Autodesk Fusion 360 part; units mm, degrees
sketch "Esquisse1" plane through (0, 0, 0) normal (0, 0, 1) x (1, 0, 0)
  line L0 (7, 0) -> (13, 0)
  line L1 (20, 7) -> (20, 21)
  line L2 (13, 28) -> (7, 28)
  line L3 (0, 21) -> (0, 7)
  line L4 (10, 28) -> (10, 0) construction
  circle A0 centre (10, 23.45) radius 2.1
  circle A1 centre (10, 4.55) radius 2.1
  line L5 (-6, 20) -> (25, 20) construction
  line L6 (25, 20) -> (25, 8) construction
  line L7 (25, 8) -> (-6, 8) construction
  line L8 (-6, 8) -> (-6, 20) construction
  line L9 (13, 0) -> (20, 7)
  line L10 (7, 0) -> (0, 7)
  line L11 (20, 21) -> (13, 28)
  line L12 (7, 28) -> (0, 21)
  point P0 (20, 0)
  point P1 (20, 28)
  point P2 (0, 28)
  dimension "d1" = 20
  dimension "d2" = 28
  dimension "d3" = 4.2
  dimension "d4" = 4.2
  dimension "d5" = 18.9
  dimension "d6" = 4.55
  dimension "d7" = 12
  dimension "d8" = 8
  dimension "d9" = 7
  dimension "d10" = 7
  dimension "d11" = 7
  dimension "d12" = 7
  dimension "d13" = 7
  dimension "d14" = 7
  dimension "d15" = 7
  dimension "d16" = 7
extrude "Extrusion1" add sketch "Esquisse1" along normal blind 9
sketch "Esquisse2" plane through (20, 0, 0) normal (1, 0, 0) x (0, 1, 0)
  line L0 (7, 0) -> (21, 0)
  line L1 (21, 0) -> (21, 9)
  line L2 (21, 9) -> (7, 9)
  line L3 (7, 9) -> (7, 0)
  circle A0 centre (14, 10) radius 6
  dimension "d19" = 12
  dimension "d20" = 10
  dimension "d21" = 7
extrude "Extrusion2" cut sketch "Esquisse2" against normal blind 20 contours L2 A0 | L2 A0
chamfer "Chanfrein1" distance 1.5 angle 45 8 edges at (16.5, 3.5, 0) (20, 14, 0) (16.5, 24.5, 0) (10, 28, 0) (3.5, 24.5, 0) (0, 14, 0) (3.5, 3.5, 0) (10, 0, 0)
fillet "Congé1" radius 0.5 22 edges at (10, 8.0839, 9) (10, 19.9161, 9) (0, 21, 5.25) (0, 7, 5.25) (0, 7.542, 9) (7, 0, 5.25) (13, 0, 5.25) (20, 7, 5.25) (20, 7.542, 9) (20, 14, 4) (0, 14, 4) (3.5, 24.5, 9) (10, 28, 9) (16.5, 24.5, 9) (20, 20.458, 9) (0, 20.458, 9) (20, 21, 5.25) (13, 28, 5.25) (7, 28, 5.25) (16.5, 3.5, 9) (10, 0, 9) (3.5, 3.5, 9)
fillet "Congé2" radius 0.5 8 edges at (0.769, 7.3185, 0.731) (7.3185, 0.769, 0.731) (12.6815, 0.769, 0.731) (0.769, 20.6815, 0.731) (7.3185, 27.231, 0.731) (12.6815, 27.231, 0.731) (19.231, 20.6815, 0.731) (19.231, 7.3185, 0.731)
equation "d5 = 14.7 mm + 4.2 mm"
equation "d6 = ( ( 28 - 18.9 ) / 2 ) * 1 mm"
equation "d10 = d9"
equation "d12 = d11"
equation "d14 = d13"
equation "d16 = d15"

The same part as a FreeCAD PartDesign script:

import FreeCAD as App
import Part
import Sketcher

V = App.Vector


def edges_at(feature, points):
    """Names of the edges that pass closest to the given points."""
    edges = feature.Shape.Edges
    near = lambda p: min(range(len(edges)), key=lambda i: edges[i].distToShape(Part.Vertex(*p))[0])
    return sorted({f"Edge{near(p) + 1}" for p in points})


def add_polygon(sketch, points):
    """Adds a closed chain of lines whose ends are joined by coincident constraints."""
    first, n = sketch.GeometryCount, len(points)
    for a, b in zip(points, points[1:] + points[:1]):
        sketch.addGeometry(Part.LineSegment(App.Vector(*a, 0), App.Vector(*b, 0)), False)
    for i in range(n):
        sketch.addConstraint(Sketcher.Constraint("Coincident", first + i, 2, first + (i + 1) % n, 1))

doc = App.newDocument("Part")
body = doc.addObject("PartDesign::Body", "Body")

# Sketch on XY plane
sketch1 = body.newObject("Sketcher::SketchObject", "Sketch")
sketch1.AttachmentSupport = (doc.getObject("XY_Plane"), [""])
sketch1.MapMode = "FlatFace"
add_polygon(sketch1, [(0, 7), (7, 0), (13, 0), (20, 7), (20, 21), (13, 28), (7, 28), (0, 21)])  # lines 0-7
sketch1.addGeometry(Part.Circle(V(10, 4.55, 0), V(0, 0, 1), 2.1), False)  # 8
sketch1.addGeometry(Part.Circle(V(10, 23.45, 0), V(0, 0, 1), 2.1), False)  # 9
sketch1.addConstraint(Sketcher.Constraint("Horizontal", 1))
sketch1.addConstraint(Sketcher.Constraint("Vertical", 3))
sketch1.addConstraint(Sketcher.Constraint("Horizontal", 5))
sketch1.addConstraint(Sketcher.Constraint("Vertical", 7))
sketch1.addConstraint(Sketcher.Constraint("Equal", 8, 9))
sketch1.addConstraint(Sketcher.Constraint("PointOnObject", 0, 2, -1))
sketch1.addConstraint(Sketcher.Constraint("PointOnObject", 6, 2, -2))
sketch1.addConstraint(Sketcher.Constraint("Perpendicular", 0, 2))
sketch1.addConstraint(Sketcher.Constraint("Perpendicular", 2, 4))
sketch1.addConstraint(Sketcher.Constraint("Perpendicular", 4, 6))
sketch1.addConstraint(Sketcher.Constraint("Horizontal", 3, 2, 6, 2))
sketch1.addConstraint(Sketcher.Constraint("Horizontal", 2, 2, 7, 2))
sketch1.addConstraint(Sketcher.Constraint("Vertical", 8, 3, 9, 3))
sketch1.addConstraint(Sketcher.Constraint("Vertical", 1, 2, 4, 2))
sketch1.addConstraint(Sketcher.Constraint("Vertical", 0, 2, 5, 2))
sketch1.addConstraint(Sketcher.Constraint("Diameter", 8, 4.2))
sketch1.addConstraint(Sketcher.Constraint("DistanceX", -1, 1, 0, 2, 7.0))
sketch1.addConstraint(Sketcher.Constraint("DistanceX", -1, 1, 2, 2, 20.0))
sketch1.addConstraint(Sketcher.Constraint("DistanceY", -1, 1, 4, 2, 28.0))
sketch1.addConstraint(Sketcher.Constraint("DistanceY", 8, 3, 9, 3, 18.9))
sketch1.addConstraint(Sketcher.Constraint("DistanceY", -1, 1, 8, 3, 4.55))
sketch1.addConstraint(Sketcher.Constraint("DistanceX", -1, 1, 8, 3, 10.0))
pad1 = body.newObject("PartDesign::Pad", "Pad")
pad1.Profile = sketch1
pad1.Length = 9

# Sketch on YZ plane
sketch2 = body.newObject("Sketcher::SketchObject", "Sketch001")
sketch2.AttachmentSupport = (doc.getObject("YZ_Plane"), [""])
sketch2.MapMode = "FlatFace"
sketch2.AttachmentOffset = App.Placement(V(0, 0, 20), App.Rotation())
sketch2.addGeometry(Part.Circle(V(14, 10, 0), V(0, 0, 1), 6), False)
sketch2.addConstraint(Sketcher.Constraint("Diameter", 0, 12.0))
sketch2.addConstraint(Sketcher.Constraint("DistanceY", -1, 1, 0, 3, 10.0))
sketch2.addConstraint(Sketcher.Constraint("DistanceX", -1, 1, 0, 3, 14.0))
pocket1 = body.newObject("PartDesign::Pocket", "Pocket")
pocket1.Profile = sketch2
pocket1.Length = 20
doc.recompute()

chamfer = body.newObject("PartDesign::Chamfer", "Chamfer")
chamfer.Base = (pocket1, edges_at(pocket1, [
    (16.5, 3.5, 0),
    (20, 14, 0),
    (16.5, 24.5, 0),
    (10, 28, 0),
    (3.5, 24.5, 0),
    (0, 14, 0),
    (3.5, 3.5, 0),
    (10, 0, 0),
]))
chamfer.Size = 1.5
doc.recompute()

fillet = body.newObject("PartDesign::Fillet", "Fillet")
fillet.Base = (chamfer, edges_at(chamfer, [
    (10, 8.084, 9),
    (10, 19.916, 9),
    (0, 21, 5.25),
    (0, 7, 5.25),
    (0, 7.542, 9),
    (7, 0, 5.25),
    (13, 0, 5.25),
    (20, 7, 5.25),
    (20, 7.542, 9),
    (20, 14, 4),
    (0, 14, 4),
    (3.5, 24.5, 9),
    (10, 28, 9),
    (16.5, 24.5, 9),
    (20, 20.458, 9),
    (0, 20.458, 9),
    (20, 21, 5.25),
    (13, 28, 5.25),
    (7, 28, 5.25),
    (16.5, 3.5, 9),
    (10, 0, 9),
    (3.5, 3.5, 9),
]))
fillet.Radius = 0.5
doc.recompute()

fillet2 = body.newObject("PartDesign::Fillet", "Fillet001")
fillet2.Base = (fillet, edges_at(fillet, [
    (0.769, 7.319, 0.731),
    (7.319, 0.769, 0.731),
    (12.681, 0.769, 0.731),
    (0.769, 20.681, 0.731),
    (7.319, 27.231, 0.731),
    (12.681, 27.231, 0.731),
    (19.231, 20.681, 0.731),
    (19.231, 7.319, 0.731),
]))
fillet2.Radius = 0.5

doc.recompute()
